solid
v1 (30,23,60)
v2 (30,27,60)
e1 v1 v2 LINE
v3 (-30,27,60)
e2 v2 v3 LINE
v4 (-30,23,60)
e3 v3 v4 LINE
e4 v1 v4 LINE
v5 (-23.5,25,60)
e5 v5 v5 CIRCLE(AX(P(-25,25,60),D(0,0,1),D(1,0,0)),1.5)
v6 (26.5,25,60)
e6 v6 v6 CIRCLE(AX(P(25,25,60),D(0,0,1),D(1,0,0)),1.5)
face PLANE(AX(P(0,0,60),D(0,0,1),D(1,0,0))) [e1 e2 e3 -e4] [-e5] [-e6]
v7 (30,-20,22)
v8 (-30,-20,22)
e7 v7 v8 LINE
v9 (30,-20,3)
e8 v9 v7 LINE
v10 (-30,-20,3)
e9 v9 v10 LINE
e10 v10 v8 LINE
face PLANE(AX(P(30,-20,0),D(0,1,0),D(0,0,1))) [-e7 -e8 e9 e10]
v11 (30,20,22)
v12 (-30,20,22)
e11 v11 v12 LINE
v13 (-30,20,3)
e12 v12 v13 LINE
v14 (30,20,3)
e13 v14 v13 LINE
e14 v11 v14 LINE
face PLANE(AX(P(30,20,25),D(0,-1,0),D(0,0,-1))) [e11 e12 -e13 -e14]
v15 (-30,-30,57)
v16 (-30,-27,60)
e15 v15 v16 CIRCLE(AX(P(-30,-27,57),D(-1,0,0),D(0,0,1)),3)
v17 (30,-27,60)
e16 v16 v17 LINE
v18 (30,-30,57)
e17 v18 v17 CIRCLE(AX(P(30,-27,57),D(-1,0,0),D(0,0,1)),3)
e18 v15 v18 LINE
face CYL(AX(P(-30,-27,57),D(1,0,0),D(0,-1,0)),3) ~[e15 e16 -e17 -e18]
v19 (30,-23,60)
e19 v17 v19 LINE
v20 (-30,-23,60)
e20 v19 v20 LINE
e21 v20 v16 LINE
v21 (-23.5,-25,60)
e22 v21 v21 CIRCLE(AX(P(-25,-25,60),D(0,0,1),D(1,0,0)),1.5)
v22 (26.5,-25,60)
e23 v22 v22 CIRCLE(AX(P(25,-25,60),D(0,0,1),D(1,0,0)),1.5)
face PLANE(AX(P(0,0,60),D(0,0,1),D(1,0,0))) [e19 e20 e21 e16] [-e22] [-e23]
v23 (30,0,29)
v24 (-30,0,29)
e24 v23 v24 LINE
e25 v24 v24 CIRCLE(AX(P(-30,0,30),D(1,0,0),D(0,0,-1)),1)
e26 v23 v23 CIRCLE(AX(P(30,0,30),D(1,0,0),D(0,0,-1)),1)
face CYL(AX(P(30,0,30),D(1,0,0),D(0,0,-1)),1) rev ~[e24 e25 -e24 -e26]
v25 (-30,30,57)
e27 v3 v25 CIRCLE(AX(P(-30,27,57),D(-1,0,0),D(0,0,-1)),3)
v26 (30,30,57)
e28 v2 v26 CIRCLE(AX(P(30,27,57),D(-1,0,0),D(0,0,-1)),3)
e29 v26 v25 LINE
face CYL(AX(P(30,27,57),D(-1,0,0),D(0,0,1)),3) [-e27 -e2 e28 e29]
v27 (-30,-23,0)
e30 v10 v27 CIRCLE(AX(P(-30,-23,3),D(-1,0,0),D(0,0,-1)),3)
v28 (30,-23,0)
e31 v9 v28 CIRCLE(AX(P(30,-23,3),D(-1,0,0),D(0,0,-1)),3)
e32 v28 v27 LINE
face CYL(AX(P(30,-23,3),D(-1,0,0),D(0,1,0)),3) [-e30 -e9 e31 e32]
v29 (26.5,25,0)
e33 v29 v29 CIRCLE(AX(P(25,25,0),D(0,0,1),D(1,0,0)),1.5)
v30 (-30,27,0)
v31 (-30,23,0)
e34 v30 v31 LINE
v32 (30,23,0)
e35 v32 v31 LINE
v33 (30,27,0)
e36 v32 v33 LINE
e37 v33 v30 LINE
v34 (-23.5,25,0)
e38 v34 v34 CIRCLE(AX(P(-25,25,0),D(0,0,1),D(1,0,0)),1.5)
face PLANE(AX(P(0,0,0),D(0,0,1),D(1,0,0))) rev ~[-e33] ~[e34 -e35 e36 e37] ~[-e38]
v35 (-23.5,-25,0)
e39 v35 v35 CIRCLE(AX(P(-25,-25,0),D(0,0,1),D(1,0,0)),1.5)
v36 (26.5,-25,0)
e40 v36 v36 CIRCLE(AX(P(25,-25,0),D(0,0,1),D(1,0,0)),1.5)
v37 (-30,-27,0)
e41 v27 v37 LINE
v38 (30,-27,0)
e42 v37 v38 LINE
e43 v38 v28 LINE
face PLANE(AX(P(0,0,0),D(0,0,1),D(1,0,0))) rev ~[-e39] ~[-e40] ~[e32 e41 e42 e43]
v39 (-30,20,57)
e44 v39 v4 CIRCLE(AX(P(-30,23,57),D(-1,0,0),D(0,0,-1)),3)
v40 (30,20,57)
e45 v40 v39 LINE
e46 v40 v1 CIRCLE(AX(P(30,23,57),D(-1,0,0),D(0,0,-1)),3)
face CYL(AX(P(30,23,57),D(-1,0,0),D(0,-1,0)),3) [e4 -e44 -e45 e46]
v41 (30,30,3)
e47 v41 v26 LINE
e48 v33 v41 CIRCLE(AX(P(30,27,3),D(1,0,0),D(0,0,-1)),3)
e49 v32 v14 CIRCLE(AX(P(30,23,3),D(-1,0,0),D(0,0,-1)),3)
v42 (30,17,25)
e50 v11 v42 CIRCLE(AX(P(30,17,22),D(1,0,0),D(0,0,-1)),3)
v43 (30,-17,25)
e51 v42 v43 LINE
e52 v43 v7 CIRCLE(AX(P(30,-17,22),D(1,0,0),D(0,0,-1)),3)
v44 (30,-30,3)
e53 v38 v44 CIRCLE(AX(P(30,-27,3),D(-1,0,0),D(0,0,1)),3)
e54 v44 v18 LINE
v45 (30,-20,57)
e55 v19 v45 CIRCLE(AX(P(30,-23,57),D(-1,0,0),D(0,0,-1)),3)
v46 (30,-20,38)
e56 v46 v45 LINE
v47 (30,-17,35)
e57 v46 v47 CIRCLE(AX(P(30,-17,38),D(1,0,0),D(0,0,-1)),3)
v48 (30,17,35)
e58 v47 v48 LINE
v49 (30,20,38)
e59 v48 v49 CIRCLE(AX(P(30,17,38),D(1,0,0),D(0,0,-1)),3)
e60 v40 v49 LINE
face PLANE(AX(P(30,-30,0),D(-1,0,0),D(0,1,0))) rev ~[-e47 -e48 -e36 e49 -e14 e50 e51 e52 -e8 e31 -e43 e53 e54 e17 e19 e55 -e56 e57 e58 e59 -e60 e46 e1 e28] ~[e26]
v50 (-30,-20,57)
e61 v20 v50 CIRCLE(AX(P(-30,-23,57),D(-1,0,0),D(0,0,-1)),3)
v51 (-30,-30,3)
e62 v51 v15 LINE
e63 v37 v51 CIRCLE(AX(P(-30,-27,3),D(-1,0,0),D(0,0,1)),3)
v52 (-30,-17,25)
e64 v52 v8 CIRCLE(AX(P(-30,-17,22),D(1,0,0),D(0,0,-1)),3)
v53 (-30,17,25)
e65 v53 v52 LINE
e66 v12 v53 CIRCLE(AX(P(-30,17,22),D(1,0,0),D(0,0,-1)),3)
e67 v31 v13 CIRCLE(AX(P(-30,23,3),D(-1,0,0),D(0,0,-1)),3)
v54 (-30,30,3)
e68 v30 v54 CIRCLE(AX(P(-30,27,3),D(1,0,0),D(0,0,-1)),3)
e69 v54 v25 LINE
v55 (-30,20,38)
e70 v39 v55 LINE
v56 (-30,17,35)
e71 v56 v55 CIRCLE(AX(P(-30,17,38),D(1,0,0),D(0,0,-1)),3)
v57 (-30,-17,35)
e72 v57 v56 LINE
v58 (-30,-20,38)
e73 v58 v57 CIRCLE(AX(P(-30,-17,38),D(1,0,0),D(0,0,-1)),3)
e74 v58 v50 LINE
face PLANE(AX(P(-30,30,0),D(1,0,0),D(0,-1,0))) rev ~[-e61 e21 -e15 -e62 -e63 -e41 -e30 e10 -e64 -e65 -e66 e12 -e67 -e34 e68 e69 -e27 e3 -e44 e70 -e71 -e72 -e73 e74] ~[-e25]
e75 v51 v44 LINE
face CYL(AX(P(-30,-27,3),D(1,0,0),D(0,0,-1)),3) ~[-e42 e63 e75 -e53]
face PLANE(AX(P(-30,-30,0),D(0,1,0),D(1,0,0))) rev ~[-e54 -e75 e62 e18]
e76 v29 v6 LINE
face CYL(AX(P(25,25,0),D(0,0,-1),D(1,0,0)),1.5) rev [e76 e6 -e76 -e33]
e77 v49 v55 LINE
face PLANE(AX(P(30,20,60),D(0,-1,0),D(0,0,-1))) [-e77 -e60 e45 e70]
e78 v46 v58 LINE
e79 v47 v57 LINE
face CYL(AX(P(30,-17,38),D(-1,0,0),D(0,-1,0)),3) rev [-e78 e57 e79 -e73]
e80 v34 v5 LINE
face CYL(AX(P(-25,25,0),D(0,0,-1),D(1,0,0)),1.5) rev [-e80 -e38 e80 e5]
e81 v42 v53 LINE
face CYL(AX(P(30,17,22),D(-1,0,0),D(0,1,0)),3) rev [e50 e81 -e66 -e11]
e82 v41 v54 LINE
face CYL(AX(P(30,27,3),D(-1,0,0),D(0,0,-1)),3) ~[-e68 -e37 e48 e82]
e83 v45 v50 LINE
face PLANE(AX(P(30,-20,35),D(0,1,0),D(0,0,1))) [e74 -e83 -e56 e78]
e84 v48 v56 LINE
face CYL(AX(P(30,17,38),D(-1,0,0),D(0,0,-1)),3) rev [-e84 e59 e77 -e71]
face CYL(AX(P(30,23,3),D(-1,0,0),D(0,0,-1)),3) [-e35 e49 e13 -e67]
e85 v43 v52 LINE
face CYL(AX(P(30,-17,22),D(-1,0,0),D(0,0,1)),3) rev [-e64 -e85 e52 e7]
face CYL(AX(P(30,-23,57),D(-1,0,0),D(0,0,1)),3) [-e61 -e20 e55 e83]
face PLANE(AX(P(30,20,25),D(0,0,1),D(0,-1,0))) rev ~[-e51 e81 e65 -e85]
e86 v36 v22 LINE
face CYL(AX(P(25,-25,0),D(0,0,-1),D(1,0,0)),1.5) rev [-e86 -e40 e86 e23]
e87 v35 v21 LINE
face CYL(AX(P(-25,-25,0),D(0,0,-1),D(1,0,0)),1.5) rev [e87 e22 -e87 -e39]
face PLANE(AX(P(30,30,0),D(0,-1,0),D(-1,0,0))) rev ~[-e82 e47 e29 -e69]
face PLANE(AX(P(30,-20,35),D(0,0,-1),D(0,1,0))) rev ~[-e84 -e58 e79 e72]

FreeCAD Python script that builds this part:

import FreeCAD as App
import Part
import Sketcher

V = App.Vector


def edges_at(feature, points):
    """Names of the edges that pass closest to the given points."""
    edges = feature.Shape.Edges
    near = lambda p: min(range(len(edges)), key=lambda i: edges[i].distToShape(Part.Vertex(*p))[0])
    return sorted({f"Edge{near(p) + 1}" for p in points})

doc = App.newDocument("Part")
body = doc.addObject("PartDesign::Body", "Body")

# Sketch on XY plane
sketch1 = body.newObject("Sketcher::SketchObject", "Sketch")
sketch1.AttachmentSupport = (doc.getObject("XY_Plane"), [""])
sketch1.MapMode = "FlatFace"
sketch1.addGeometry(Part.LineSegment(V(-30, 30, 0), V(-30, -30, 0)), False)
sketch1.addGeometry(Part.LineSegment(V(-30, -30, 0), V(30, -30, 0)), False)
sketch1.addGeometry(Part.LineSegment(V(30, -30, 0), V(30, 30, 0)), False)
sketch1.addGeometry(Part.LineSegment(V(30, 30, 0), V(-30, 30, 0)), False)
sketch1.addGeometry(Part.Circle(V(-25, -25, 0), V(0, 0, 1), 1.5), False)
sketch1.addGeometry(Part.Circle(V(25, -25, 0), V(0, 0, 1), 1.5), False)
sketch1.addGeometry(Part.Circle(V(-25, 25, 0), V(0, 0, 1), 1.5), False)
sketch1.addGeometry(Part.Circle(V(25, 25, 0), V(0, 0, 1), 1.5), False)
sketch1.addConstraint(Sketcher.Constraint("Coincident", 0, 2, 1, 1))
sketch1.addConstraint(Sketcher.Constraint("Coincident", 1, 2, 2, 1))
sketch1.addConstraint(Sketcher.Constraint("Coincident", 2, 2, 3, 1))
sketch1.addConstraint(Sketcher.Constraint("Coincident", 3, 2, 0, 1))
sketch1.addConstraint(Sketcher.Constraint("Vertical", 0))
sketch1.addConstraint(Sketcher.Constraint("Horizontal", 1))
sketch1.addConstraint(Sketcher.Constraint("Vertical", 2))
sketch1.addConstraint(Sketcher.Constraint("Horizontal", 3))
sketch1.addConstraint(Sketcher.Constraint("Equal", 4, 5))
sketch1.addConstraint(Sketcher.Constraint("Equal", 5, 6))
sketch1.addConstraint(Sketcher.Constraint("Equal", 6, 7))
sketch1.addConstraint(Sketcher.Constraint("Symmetric", 5, 3, 6, 3, -1, 1))
sketch1.addConstraint(Sketcher.Constraint("Symmetric", 4, 3, 7, 3, -1, 1))
sketch1.addConstraint(Sketcher.Constraint("Symmetric", 0, 2, 2, 2, -1, 1))
sketch1.addConstraint(Sketcher.Constraint("Symmetric", 4, 3, 5, 3, -2))
sketch1.addConstraint(Sketcher.Constraint("Equal", 3, 0))
sketch1.addConstraint(Sketcher.Constraint("Diameter", 4, 3.0))
sketch1.addConstraint(Sketcher.Constraint("DistanceX", 1, 1, 1, 2, 60.0))
sketch1.addConstraint(Sketcher.Constraint("DistanceX", 0, 2, 4, 3, 5.0))
sketch1.addConstraint(Sketcher.Constraint("DistanceY", 0, 2, 4, 3, 5.0))
pad1 = body.newObject("PartDesign::Pad", "Pad")
pad1.Profile = sketch1
pad1.Length = 60

# Sketch on YZ plane
sketch2 = body.newObject("Sketcher::SketchObject", "Sketch001")
sketch2.AttachmentSupport = (doc.getObject("YZ_Plane"), [""])
sketch2.MapMode = "FlatFace"
sketch2.AttachmentOffset = App.Placement(V(0, 0, 30), App.Rotation())
sketch2.addGeometry(Part.Circle(V(0, 30, 0), V(0, 0, 1), 1), False)
sketch2.addConstraint(Sketcher.Constraint("PointOnObject", 0, 3, -2))
sketch2.addConstraint(Sketcher.Constraint("Diameter", 0, 2.0))
sketch2.addConstraint(Sketcher.Constraint("DistanceY", -1, 1, 0, 3, 30.0))
pocket1 = body.newObject("PartDesign::Pocket", "Pocket")
pocket1.Profile = sketch2
pocket1.Length = 60

# Sketch on YZ plane
sketch3 = body.newObject("Sketcher::SketchObject", "Sketch002")
sketch3.AttachmentSupport = (doc.getObject("YZ_Plane"), [""])
sketch3.MapMode = "FlatFace"
sketch3.AttachmentOffset = App.Placement(V(0, 0, 30), App.Rotation())
sketch3.addGeometry(Part.LineSegment(V(20, 35, 0), V(20, 60, 0)), False)
sketch3.addGeometry(Part.LineSegment(V(20, 60, 0), V(-20, 60, 0)), False)
sketch3.addGeometry(Part.LineSegment(V(-20, 60, 0), V(-20, 35, 0)), False)
sketch3.addGeometry(Part.LineSegment(V(-20, 35, 0), V(20, 35, 0)), False)
sketch3.addGeometry(Part.LineSegment(V(20, 0, 0), V(20, 25, 0)), False)
sketch3.addGeometry(Part.LineSegment(V(20, 25, 0), V(-20, 25, 0)), False)
sketch3.addGeometry(Part.LineSegment(V(-20, 25, 0), V(-20, 0, 0)), False)
sketch3.addGeometry(Part.LineSegment(V(-20, 0, 0), V(20, 0, 0)), False)
sketch3.addConstraint(Sketcher.Constraint("Coincident", 0, 2, 1, 1))
sketch3.addConstraint(Sketcher.Constraint("Coincident", 1, 2, 2, 1))
sketch3.addConstraint(Sketcher.Constraint("Coincident", 2, 2, 3, 1))
sketch3.addConstraint(Sketcher.Constraint("Coincident", 3, 2, 0, 1))
sketch3.addConstraint(Sketcher.Constraint("Coincident", 4, 2, 5, 1))
sketch3.addConstraint(Sketcher.Constraint("Coincident", 5, 2, 6, 1))
sketch3.addConstraint(Sketcher.Constraint("Coincident", 6, 2, 7, 1))
sketch3.addConstraint(Sketcher.Constraint("Coincident", 7, 2, 4, 1))
sketch3.addConstraint(Sketcher.Constraint("Vertical", 0))
sketch3.addConstraint(Sketcher.Constraint("Horizontal", 1))
sketch3.addConstraint(Sketcher.Constraint("Vertical", 2))
sketch3.addConstraint(Sketcher.Constraint("Horizontal", 3))
sketch3.addConstraint(Sketcher.Constraint("Vertical", 4))
sketch3.addConstraint(Sketcher.Constraint("Horizontal", 5))
sketch3.addConstraint(Sketcher.Constraint("Vertical", 6))
sketch3.addConstraint(Sketcher.Constraint("Horizontal", 7))
sketch3.addConstraint(Sketcher.Constraint("Symmetric", 6, 2, 7, 2, -1, 1))
sketch3.addConstraint(Sketcher.Constraint("Vertical", 3, 2, 4, 2))
sketch3.addConstraint(Sketcher.Constraint("Vertical", 2, 2, 5, 2))
sketch3.addConstraint(Sketcher.Constraint("Equal", 2, 4))
sketch3.addConstraint(Sketcher.Constraint("DistanceY", 4, 2, 3, 2, 10.0))
sketch3.addConstraint(Sketcher.Constraint("DistanceX", 1, 2, 1, 1, 40.0))
sketch3.addConstraint(Sketcher.Constraint("DistanceY", 0, 1, 0, 2, 25.0))
pocket2 = body.newObject("PartDesign::Pocket", "Pocket001")
pocket2.Profile = sketch3
pocket2.Length = 60
doc.recompute()

fillet = body.newObject("PartDesign::Fillet", "Fillet")
fillet.Base = (pocket2, edges_at(pocket2, [
    (0, -30, 60),
    (0, -20, 60),
    (0, 30, 60),
    (0, 20, 60),
    (0, 20, 35),
    (0, -20, 35),
    (0, -20, 0),
    (0, -30, 0),
    (0, -20, 25),
    (0, 20, 25),
    (0, 30, 0),
    (0, 20, 0),
]))
fillet.Radius = 3

doc.recompute()
